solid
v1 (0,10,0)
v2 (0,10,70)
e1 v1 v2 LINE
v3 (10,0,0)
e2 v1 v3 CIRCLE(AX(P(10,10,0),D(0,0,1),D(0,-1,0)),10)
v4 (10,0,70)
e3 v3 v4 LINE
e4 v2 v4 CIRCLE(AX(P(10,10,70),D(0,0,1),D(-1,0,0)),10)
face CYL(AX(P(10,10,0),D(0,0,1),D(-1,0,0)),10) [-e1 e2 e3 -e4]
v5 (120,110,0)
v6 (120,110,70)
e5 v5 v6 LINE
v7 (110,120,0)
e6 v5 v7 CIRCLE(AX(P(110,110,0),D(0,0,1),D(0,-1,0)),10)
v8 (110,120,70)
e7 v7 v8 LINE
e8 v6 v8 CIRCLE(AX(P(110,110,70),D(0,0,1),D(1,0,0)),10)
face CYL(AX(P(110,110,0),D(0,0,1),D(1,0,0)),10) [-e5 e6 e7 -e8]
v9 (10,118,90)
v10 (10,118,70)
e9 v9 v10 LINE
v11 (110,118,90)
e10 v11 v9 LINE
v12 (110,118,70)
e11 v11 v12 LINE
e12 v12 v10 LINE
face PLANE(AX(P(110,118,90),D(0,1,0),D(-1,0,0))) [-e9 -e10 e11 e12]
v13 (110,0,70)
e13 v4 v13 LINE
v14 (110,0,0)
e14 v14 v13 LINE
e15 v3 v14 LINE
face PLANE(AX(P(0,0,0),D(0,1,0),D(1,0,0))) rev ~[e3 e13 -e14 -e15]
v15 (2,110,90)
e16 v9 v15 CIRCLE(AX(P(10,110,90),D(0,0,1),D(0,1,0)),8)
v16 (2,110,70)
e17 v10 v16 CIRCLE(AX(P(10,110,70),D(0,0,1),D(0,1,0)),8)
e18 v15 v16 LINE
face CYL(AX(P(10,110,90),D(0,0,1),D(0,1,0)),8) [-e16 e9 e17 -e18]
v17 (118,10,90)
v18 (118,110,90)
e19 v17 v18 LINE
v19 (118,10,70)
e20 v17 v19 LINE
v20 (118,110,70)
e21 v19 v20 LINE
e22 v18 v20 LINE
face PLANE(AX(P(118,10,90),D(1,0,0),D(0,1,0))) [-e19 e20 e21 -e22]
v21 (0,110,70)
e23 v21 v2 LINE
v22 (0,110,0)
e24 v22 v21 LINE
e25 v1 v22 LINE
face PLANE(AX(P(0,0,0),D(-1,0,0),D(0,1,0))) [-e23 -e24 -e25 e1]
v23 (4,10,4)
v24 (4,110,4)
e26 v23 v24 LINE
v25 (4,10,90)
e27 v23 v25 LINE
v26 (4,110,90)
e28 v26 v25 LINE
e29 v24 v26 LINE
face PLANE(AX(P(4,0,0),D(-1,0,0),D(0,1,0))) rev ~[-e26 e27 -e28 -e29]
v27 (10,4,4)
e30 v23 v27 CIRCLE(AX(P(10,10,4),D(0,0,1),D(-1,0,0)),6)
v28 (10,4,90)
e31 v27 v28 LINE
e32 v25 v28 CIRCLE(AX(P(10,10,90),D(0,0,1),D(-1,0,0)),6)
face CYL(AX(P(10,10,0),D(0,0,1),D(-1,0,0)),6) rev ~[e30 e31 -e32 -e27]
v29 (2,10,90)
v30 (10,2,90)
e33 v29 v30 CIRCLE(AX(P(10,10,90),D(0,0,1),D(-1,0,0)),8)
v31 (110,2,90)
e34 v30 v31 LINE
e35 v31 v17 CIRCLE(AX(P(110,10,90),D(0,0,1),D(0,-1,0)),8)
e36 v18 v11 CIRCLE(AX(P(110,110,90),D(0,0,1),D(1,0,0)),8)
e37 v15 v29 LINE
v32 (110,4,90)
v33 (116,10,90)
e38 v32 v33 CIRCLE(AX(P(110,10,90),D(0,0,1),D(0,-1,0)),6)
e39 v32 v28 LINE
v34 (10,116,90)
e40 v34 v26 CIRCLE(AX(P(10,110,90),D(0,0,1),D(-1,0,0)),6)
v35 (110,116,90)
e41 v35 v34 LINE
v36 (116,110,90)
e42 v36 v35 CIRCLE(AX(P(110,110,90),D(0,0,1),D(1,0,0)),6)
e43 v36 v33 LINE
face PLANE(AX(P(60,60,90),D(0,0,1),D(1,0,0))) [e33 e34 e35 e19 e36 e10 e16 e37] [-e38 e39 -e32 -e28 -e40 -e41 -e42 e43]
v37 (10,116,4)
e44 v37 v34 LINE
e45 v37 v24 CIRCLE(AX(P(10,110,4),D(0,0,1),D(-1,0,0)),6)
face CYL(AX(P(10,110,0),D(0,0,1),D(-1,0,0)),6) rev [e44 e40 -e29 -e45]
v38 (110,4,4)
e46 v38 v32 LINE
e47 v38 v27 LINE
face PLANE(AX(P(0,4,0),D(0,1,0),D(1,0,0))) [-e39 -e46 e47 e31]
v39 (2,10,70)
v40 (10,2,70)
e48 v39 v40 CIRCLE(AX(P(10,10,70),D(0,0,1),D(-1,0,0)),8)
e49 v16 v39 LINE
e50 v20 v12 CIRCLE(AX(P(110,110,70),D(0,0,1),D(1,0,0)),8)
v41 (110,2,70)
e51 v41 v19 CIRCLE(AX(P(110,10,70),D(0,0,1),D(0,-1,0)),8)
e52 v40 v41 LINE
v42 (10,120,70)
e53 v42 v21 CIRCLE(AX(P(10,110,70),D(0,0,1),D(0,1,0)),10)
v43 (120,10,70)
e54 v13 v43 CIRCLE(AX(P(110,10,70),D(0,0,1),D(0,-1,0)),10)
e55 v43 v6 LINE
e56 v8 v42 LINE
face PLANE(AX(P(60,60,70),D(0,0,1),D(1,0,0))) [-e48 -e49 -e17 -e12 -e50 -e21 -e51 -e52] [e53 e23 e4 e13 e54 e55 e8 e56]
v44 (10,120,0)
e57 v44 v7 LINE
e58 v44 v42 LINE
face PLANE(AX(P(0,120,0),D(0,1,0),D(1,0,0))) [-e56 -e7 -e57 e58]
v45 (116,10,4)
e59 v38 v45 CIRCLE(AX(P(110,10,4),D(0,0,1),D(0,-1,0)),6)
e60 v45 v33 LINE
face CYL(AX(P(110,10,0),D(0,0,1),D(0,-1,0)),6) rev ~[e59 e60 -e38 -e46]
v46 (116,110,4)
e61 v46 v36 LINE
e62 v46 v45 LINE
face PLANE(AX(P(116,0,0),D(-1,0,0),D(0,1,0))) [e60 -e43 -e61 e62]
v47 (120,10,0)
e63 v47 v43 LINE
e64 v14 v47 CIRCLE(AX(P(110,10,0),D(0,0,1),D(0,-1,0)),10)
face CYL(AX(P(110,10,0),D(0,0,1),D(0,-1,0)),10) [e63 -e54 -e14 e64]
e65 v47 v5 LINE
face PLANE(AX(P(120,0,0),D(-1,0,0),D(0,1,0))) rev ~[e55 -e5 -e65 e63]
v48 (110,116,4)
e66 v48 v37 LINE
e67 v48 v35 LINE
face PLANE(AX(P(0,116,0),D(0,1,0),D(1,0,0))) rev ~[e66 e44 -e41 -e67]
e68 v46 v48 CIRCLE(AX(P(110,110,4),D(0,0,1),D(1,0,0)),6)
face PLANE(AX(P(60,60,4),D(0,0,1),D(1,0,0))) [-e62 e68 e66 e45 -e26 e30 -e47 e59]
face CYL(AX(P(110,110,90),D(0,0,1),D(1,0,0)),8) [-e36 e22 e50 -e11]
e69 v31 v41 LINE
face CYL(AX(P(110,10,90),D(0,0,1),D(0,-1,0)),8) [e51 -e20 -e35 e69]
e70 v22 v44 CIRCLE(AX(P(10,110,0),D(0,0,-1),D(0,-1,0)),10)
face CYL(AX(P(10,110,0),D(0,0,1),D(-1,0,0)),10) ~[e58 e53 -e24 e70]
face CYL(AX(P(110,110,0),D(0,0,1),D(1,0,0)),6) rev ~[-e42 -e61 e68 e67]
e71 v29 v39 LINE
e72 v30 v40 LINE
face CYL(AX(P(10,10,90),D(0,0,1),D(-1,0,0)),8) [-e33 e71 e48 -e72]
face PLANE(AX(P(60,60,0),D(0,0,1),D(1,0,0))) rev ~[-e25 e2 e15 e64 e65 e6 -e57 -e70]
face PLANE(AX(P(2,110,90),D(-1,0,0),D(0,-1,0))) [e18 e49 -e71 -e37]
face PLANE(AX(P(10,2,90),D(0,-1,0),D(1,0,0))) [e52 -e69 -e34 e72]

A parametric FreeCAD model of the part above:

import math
import FreeCAD as App
import Part
import Sketcher
from FreeCAD import Vector


def edges_at(feature, points):
    """Names of the edges that pass closest to the given points."""
    edges = feature.Shape.Edges
    near = lambda p: min(range(len(edges)), key=lambda i: edges[i].distToShape(Part.Vertex(*p))[0])
    return sorted({f"Edge{near(p) + 1}" for p in points})


def faces_at(feature, points):
    """Names of the faces that lie closest to the given points."""
    faces = feature.Shape.Faces
    near = lambda p: min(range(len(faces)), key=lambda i: faces[i].distToShape(Part.Vertex(*p))[0])
    return sorted({f"Face{near(p) + 1}" for p in points})

doc = App.newDocument("Part")
body = doc.addObject("PartDesign::Body", "Body")

# Sketch on XY plane
sketch1 = body.newObject("Sketcher::SketchObject", "Sketch")
sketch1.AttachmentSupport = (doc.getObject("XY_Plane"), [""])
sketch1.MapMode = "FlatFace"
sketch1.addGeometry([
    Part.LineSegment(Vector(0, 120, 0), Vector(0, 0, 0)),
    Part.LineSegment(Vector(0, 0, 0), Vector(120, 0, 0)),
    Part.LineSegment(Vector(120, 0, 0), Vector(120, 120, 0)),
    Part.LineSegment(Vector(120, 120, 0), Vector(0, 120, 0)),
], False)
sketch1.addConstraint([
    Sketcher.Constraint("Coincident", 0, 2, 1, 1),
    Sketcher.Constraint("Coincident", 1, 2, 2, 1),
    Sketcher.Constraint("Coincident", 2, 2, 3, 1),
    Sketcher.Constraint("Coincident", 3, 2, 0, 1),
    Sketcher.Constraint("Vertical", 0),
    Sketcher.Constraint("Horizontal", 1),
    Sketcher.Constraint("Vertical", 2),
    Sketcher.Constraint("Horizontal", 3),
    Sketcher.Constraint("Coincident", 0, 2, -1, 1),
    Sketcher.Constraint("Equal", 3, 0),
    Sketcher.Constraint("DistanceX", 1, 1, 1, 2, 120.0),
])
pad1 = body.newObject("PartDesign::Pad", "Pad")
pad1.Profile = sketch1
pad1.Length = 90
doc.recompute()

fillet = body.newObject("PartDesign::Fillet", "Fillet")
fillet.Base = (pad1, edges_at(pad1, [
    (0, 120, 45),
    (120, 120, 45),
    (120, 0, 45),
    (0, 0, 45),
]))
fillet.Radius = 10
doc.recompute()

thickness = body.newObject("PartDesign::Thickness", "Thickness")
thickness.Base = (fillet, faces_at(fillet, [(60, 60, 90)]))
thickness.Value = 4
thickness.Reversed = True
thickness.Join = "Intersection"

# Sketch on XY plane
sketch2 = body.newObject("Sketcher::SketchObject", "Sketch001")
sketch2.AttachmentSupport = (doc.getObject("XY_Plane"), [""])
sketch2.MapMode = "FlatFace"
sketch2.AttachmentOffset = App.Placement(Vector(0, 0, 90), App.Rotation())
sketch2.addGeometry([
    Part.LineSegment(Vector(10, 0, 0), Vector(110, 0, 0)),  # 0
    Part.ArcOfCircle(Part.Circle(Vector(110, 10, 0), Vector(0, 0, 1), 10), math.radians(-90), math.radians(0)),  # 1
    Part.LineSegment(Vector(120, 10, 0), Vector(120, 110, 0)),  # 2
    Part.ArcOfCircle(Part.Circle(Vector(110, 110, 0), Vector(0, 0, 1), 10), math.radians(0), math.radians(90)),  # 3
    Part.LineSegment(Vector(110, 120, 0), Vector(10, 120, 0)),  # 4
    Part.ArcOfCircle(Part.Circle(Vector(10, 110, 0), Vector(0, 0, 1), 10), math.radians(90), math.radians(180)),  # 5
    Part.LineSegment(Vector(0, 110, 0), Vector(0, 10, 0)),  # 6
    Part.ArcOfCircle(Part.Circle(Vector(10, 10, 0), Vector(0, 0, 1), 10), math.radians(180), math.radians(270)),  # 7
    Part.LineSegment(Vector(110, 2, 0), Vector(10, 2, 0)),  # 8
    Part.ArcOfCircle(Part.Circle(Vector(10, 10, 0), Vector(0, 0, 1), 8), math.radians(-180), math.radians(-90)),  # 9
    Part.LineSegment(Vector(2, 10, 0), Vector(2, 110, 0)),  # 10
    Part.ArcOfCircle(Part.Circle(Vector(10, 110, 0), Vector(0, 0, 1), 8), math.radians(90), math.radians(180)),  # 11
    Part.LineSegment(Vector(10, 118, 0), Vector(110, 118, 0)),  # 12
    Part.ArcOfCircle(Part.Circle(Vector(110, 110, 0), Vector(0, 0, 1), 8), math.radians(0), math.radians(90)),  # 13
    Part.LineSegment(Vector(118, 110, 0), Vector(118, 10, 0)),  # 14
    Part.ArcOfCircle(Part.Circle(Vector(110, 10, 0), Vector(0, 0, 1), 8), math.radians(-90), math.radians(0)),  # 15
], False)
sketch2.addConstraint([
    Sketcher.Constraint("Tangent", 0, 2, 1, 1),
    Sketcher.Constraint("Tangent", 1, 2, 2, 1),
    Sketcher.Constraint("Tangent", 2, 2, 3, 1),
    Sketcher.Constraint("Tangent", 3, 2, 4, 1),
    Sketcher.Constraint("Tangent", 4, 2, 5, 1),
    Sketcher.Constraint("Tangent", 5, 2, 6, 1),
    Sketcher.Constraint("Tangent", 6, 2, 7, 1),
    Sketcher.Constraint("Tangent", 7, 2, 0, 1),
    Sketcher.Constraint("Tangent", 8, 2, 9, 2),
    Sketcher.Constraint("Tangent", 9, 1, 10, 1),
    Sketcher.Constraint("Tangent", 10, 2, 11, 2),
    Sketcher.Constraint("Tangent", 11, 1, 12, 1),
    Sketcher.Constraint("Tangent", 12, 2, 13, 2),
    Sketcher.Constraint("Tangent", 13, 1, 14, 1),
    Sketcher.Constraint("Tangent", 14, 2, 15, 2),
    Sketcher.Constraint("Tangent", 15, 1, 8, 1),
    Sketcher.Constraint("Horizontal", 0),
    Sketcher.Constraint("Vertical", 2),
    Sketcher.Constraint("Horizontal", 4),
    Sketcher.Constraint("Vertical", 6),
    Sketcher.Constraint("Horizontal", 8),
    Sketcher.Constraint("Vertical", 10),
    Sketcher.Constraint("Horizontal", 12),
    Sketcher.Constraint("Vertical", 14),
    Sketcher.Constraint("Coincident", 9, 3, 7, 3),
    Sketcher.Constraint("Coincident", 11, 3, 5, 3),
    Sketcher.Constraint("Coincident", 13, 3, 3, 3),
    Sketcher.Constraint("Equal", 1, 3),
    Sketcher.Constraint("Equal", 3, 5),
    Sketcher.Constraint("Equal", 5, 7),
    Sketcher.Constraint("Equal", 13, 15),
    Sketcher.Constraint("PointOnObject", 0, 2, -1),
    Sketcher.Constraint("PointOnObject", 5, 2, -2),
    Sketcher.Constraint("Equal", 12, 2),
    Sketcher.Constraint("Radius", 1, 10.0),
    Sketcher.Constraint("Radius", 9, 8.0),
    Sketcher.Constraint("DistanceX", 0, 1, 0, 2, 100.0),
])
pocket1 = body.newObject("PartDesign::Pocket", "Pocket")
pocket1.Profile = sketch2
pocket1.Type = "TwoLengths"
pocket1.Length = 20
pocket1.Length2 = 20
pocket1.Reversed = True

doc.recompute()
